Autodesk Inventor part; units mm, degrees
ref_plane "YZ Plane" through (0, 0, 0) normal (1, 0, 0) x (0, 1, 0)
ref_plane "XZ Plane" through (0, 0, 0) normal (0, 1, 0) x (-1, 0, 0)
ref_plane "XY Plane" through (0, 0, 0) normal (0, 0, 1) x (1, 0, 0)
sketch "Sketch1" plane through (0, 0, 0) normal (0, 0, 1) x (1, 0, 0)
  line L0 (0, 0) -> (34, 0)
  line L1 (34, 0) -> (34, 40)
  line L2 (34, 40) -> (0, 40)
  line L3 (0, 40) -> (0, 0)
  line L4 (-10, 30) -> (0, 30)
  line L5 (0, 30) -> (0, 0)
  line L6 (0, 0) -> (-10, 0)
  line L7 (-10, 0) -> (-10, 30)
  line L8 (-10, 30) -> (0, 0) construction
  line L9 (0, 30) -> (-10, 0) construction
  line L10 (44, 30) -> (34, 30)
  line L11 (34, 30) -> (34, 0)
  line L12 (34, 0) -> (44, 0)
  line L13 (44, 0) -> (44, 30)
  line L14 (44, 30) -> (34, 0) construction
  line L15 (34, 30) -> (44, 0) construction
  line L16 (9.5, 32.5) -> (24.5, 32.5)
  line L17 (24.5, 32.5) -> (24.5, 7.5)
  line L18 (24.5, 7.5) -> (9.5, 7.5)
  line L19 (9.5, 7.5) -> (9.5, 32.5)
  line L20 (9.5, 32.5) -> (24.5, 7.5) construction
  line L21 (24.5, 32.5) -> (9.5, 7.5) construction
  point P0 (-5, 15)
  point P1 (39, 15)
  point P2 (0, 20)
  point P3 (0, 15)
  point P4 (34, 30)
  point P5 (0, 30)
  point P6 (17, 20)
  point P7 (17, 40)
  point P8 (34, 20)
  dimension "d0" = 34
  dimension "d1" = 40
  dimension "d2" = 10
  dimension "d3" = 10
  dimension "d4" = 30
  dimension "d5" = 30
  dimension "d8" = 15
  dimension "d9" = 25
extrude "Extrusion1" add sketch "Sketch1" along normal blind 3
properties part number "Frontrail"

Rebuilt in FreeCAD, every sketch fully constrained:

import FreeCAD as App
import Part
import Sketcher
Q = App.Units.Quantity

doc = App.newDocument("Part")
body = doc.addObject("PartDesign::Body", "Body")

# Sketch on XY plane
sketch1 = body.newObject("Sketcher::SketchObject", "Sketch")
sketch1.AttachmentSupport = (doc.getObject("XY_Plane"), [""])
sketch1.MapMode = "FlatFace"
sketch1.addGeometry(Part.LineSegment(App.Vector(0, 40, 0), App.Vector(0, 30, 0)), False)
sketch1.addGeometry(Part.LineSegment(App.Vector(0, 30, 0), App.Vector(-10, 30, 0)), False)
sketch1.addGeometry(Part.LineSegment(App.Vector(-10, 30, 0), App.Vector(-10, 0, 0)), False)
sketch1.addGeometry(Part.LineSegment(App.Vector(-10, 0, 0), App.Vector(44, 0, 0)), False)
sketch1.addGeometry(Part.LineSegment(App.Vector(44, 0, 0), App.Vector(44, 30, 0)), False)
sketch1.addGeometry(Part.LineSegment(App.Vector(44, 30, 0), App.Vector(34, 30, 0)), False)
sketch1.addGeometry(Part.LineSegment(App.Vector(34, 30, 0), App.Vector(34, 40, 0)), False)
sketch1.addGeometry(Part.LineSegment(App.Vector(34, 40, 0), App.Vector(0, 40, 0)), False)
sketch1.addGeometry(Part.LineSegment(App.Vector(9.5, 7.5, 0), App.Vector(9.5, 32.5, 0)), False)
sketch1.addGeometry(Part.LineSegment(App.Vector(9.5, 32.5, 0), App.Vector(24.5, 32.5, 0)), False)
sketch1.addGeometry(Part.LineSegment(App.Vector(24.5, 32.5, 0), App.Vector(24.5, 7.5, 0)), False)
sketch1.addGeometry(Part.LineSegment(App.Vector(24.5, 7.5, 0), App.Vector(9.5, 7.5, 0)), False)
sketch1.addConstraint(Sketcher.Constraint("Coincident", 0, 2, 1, 1))
sketch1.addConstraint(Sketcher.Constraint("Coincident", 1, 2, 2, 1))
sketch1.addConstraint(Sketcher.Constraint("Coincident", 2, 2, 3, 1))
sketch1.addConstraint(Sketcher.Constraint("Coincident", 3, 2, 4, 1))
sketch1.addConstraint(Sketcher.Constraint("Coincident", 4, 2, 5, 1))
sketch1.addConstraint(Sketcher.Constraint("Coincident", 5, 2, 6, 1))
sketch1.addConstraint(Sketcher.Constraint("Coincident", 6, 2, 7, 1))
sketch1.addConstraint(Sketcher.Constraint("Coincident", 7, 2, 0, 1))
sketch1.addConstraint(Sketcher.Constraint("Coincident", 8, 2, 9, 1))
sketch1.addConstraint(Sketcher.Constraint("Coincident", 9, 2, 10, 1))
sketch1.addConstraint(Sketcher.Constraint("Coincident", 10, 2, 11, 1))
sketch1.addConstraint(Sketcher.Constraint("Coincident", 11, 2, 8, 1))
sketch1.addConstraint(Sketcher.Constraint("Vertical", 0))
sketch1.addConstraint(Sketcher.Constraint("Horizontal", 1))
sketch1.addConstraint(Sketcher.Constraint("Vertical", 2))
sketch1.addConstraint(Sketcher.Constraint("Horizontal", 3))
sketch1.addConstraint(Sketcher.Constraint("Vertical", 4))
sketch1.addConstraint(Sketcher.Constraint("Horizontal", 5))
sketch1.addConstraint(Sketcher.Constraint("Vertical", 6))
sketch1.addConstraint(Sketcher.Constraint("Horizontal", 7))
sketch1.addConstraint(Sketcher.Constraint("Vertical", 8))
sketch1.addConstraint(Sketcher.Constraint("Horizontal", 9))
sketch1.addConstraint(Sketcher.Constraint("Vertical", 10))
sketch1.addConstraint(Sketcher.Constraint("Horizontal", 11))
sketch1.addConstraint(Sketcher.Constraint("PointOnObject", 0, 2, -2))
sketch1.addConstraint(Sketcher.Constraint("PointOnObject", 2, 2, -1))
sketch1.addConstraint(Sketcher.Constraint("Horizontal", 1, 2, 4, 2))
sketch1.addConstraint(Sketcher.Constraint("Equal", 1, 5))
sketch1.addConstraint(Sketcher.Constraint("Equal", 5, 0))
sketch1.addConstraint(Sketcher.Constraint("DistanceX", 1, 2, 1, 1, Q("10 mm")))
sketch1.addConstraint(Sketcher.Constraint("DistanceX", 7, 2, 7, 1, Q("34 mm")))
sketch1.addConstraint(Sketcher.Constraint("DistanceX", 9, 1, 9, 2, Q("15 mm")))
sketch1.addConstraint(Sketcher.Constraint("DistanceY", 2, 2, 2, 1, Q("30 mm")))
sketch1.addConstraint(Sketcher.Constraint("DistanceY", 8, 1, 8, 2, Q("25 mm")))
sketch1.addConstraint(Sketcher.Constraint("DistanceX", -1, 1, 8, 2, Q("9.5 mm")))
sketch1.addConstraint(Sketcher.Constraint("DistanceY", -1, 1, 8, 2, Q("32.5 mm")))
pad1 = body.newObject("PartDesign::Pad", "Pad")
pad1.Profile = sketch1
pad1.Length = 3

doc.recompute()
